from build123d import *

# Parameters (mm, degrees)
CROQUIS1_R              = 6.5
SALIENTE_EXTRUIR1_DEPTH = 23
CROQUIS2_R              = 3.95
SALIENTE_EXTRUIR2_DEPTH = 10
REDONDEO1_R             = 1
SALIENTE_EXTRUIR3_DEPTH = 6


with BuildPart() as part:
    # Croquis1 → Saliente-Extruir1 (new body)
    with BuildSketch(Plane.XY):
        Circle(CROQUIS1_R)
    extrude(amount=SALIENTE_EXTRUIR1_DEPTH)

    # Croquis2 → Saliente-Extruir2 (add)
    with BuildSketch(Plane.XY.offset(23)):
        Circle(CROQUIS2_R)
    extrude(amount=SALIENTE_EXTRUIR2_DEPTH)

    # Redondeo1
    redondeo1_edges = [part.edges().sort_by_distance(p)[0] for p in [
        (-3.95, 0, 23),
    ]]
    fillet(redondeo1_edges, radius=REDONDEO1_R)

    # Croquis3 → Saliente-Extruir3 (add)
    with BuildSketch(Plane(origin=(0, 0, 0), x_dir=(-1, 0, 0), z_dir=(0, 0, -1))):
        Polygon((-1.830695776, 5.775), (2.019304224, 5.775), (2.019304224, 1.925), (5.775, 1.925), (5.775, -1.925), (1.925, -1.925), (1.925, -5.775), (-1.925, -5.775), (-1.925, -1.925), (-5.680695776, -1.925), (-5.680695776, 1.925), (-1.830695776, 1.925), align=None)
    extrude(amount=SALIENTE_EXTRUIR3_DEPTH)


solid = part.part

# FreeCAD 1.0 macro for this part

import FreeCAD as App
import Part
import Sketcher

V = App.Vector
Q = App.Units.Quantity


def edges_at(feature, points):
    """Names of the edges that pass closest to the given points."""
    edges = feature.Shape.Edges
    near = lambda p: min(range(len(edges)), key=lambda i: edges[i].distToShape(Part.Vertex(*p))[0])
    return sorted({f"Edge{near(p) + 1}" for p in points})


def add_polygon(sketch, points):
    """Adds a closed chain of lines whose ends are joined by coincident constraints."""
    first, n = sketch.GeometryCount, len(points)
    for a, b in zip(points, points[1:] + points[:1]):
        sketch.addGeometry(Part.LineSegment(App.Vector(*a, 0), App.Vector(*b, 0)), False)
    for i in range(n):
        sketch.addConstraint(Sketcher.Constraint("Coincident", first + i, 2, first + (i + 1) % n, 1))

doc = App.newDocument("Part")
body = doc.addObject("PartDesign::Body", "Body")

# Sketch on XY plane
sketch1 = body.newObject("Sketcher::SketchObject", "Sketch")
sketch1.AttachmentSupport = (doc.getObject("XY_Plane"), [""])
sketch1.MapMode = "FlatFace"
sketch1.addGeometry(Part.Circle(V(0, 0, 0), V(0, 0, 1), 6.5), False)
sketch1.addConstraint([
    Sketcher.Constraint("Coincident", 0, 3, -1, 1),
    Sketcher.Constraint("Diameter", 0, Q("13 mm")),
])
pad1 = body.newObject("PartDesign::Pad", "Pad")
pad1.Profile = sketch1
pad1.Length = 23

# Sketch on XY plane
sketch2 = body.newObject("Sketcher::SketchObject", "Sketch001")
sketch2.AttachmentSupport = (doc.getObject("XY_Plane"), [""])
sketch2.MapMode = "FlatFace"
sketch2.AttachmentOffset = App.Placement(V(0, 0, 23), App.Rotation())
sketch2.addGeometry(Part.Circle(V(0, 0, 0), V(0, 0, 1), 3.95), False)
sketch2.addConstraint([
    Sketcher.Constraint("Coincident", 0, 3, -1, 1),
    Sketcher.Constraint("Diameter", 0, Q("7.9 mm")),
])
pad2 = body.newObject("PartDesign::Pad", "Pad001")
pad2.Profile = sketch2
pad2.Length = 10
doc.recompute()

fillet = body.newObject("PartDesign::Fillet", "Fillet")
fillet.Base = (pad2, edges_at(pad2, [(-3.95, 0, 23)]))
fillet.Radius = 1

# Sketch on XY plane
sketch3 = body.newObject("Sketcher::SketchObject", "Sketch002")
sketch3.AttachmentSupport = (doc.getObject("XY_Plane"), [""])
sketch3.MapMode = "FlatFace"
add_polygon(sketch3, [(-2.019304, 5.775), (1.830696, 5.775), (1.830696, 1.925), (5.680696, 1.925), (5.680696, -1.925), (1.925, -1.925), (1.925, -5.775), (-1.925, -5.775), (-1.925, -1.925), (-5.775, -1.925), (-5.775, 1.925), (-2.019304, 1.925)])  # lines 0-11
sketch3.addConstraint([
    Sketcher.Constraint("Horizontal", 0),
    Sketcher.Constraint("Vertical", 1),
    Sketcher.Constraint("Horizontal", 2),
    Sketcher.Constraint("Vertical", 3),
    Sketcher.Constraint("Horizontal", 4),
    Sketcher.Constraint("Vertical", 5),
    Sketcher.Constraint("Horizontal", 6),
    Sketcher.Constraint("Vertical", 7),
    Sketcher.Constraint("Horizontal", 8),
    Sketcher.Constraint("Vertical", 9),
    Sketcher.Constraint("Horizontal", 10),
    Sketcher.Constraint("Vertical", 11),
    Sketcher.Constraint("Symmetric", 4, 2, 7, 2, -2),
    Sketcher.Constraint("Horizontal", 2, 2, 9, 2),
    Sketcher.Constraint("Equal", 0, 2),
    Sketcher.Constraint("Equal", 2, 6),
    Sketcher.Constraint("Equal", 6, 8),
    Sketcher.Constraint("Equal", 8, 1),
    Sketcher.Constraint("Equal", 1, 3),
    Sketcher.Constraint("Equal", 3, 5),
    Sketcher.Constraint("DistanceX", 0, 1, 0, 2, Q("3.85 mm")),
    Sketcher.Constraint("DistanceY", -1, 1, 0, 2, Q("5.775 mm")),
    Sketcher.Constraint("DistanceX", 4, 2, 4, 1, Q("3.755696 mm")),
])
pad3 = body.newObject("PartDesign::Pad", "Pad002")
pad3.Profile = sketch3
pad3.Length = 6
pad3.Reversed = True

doc.recompute()
